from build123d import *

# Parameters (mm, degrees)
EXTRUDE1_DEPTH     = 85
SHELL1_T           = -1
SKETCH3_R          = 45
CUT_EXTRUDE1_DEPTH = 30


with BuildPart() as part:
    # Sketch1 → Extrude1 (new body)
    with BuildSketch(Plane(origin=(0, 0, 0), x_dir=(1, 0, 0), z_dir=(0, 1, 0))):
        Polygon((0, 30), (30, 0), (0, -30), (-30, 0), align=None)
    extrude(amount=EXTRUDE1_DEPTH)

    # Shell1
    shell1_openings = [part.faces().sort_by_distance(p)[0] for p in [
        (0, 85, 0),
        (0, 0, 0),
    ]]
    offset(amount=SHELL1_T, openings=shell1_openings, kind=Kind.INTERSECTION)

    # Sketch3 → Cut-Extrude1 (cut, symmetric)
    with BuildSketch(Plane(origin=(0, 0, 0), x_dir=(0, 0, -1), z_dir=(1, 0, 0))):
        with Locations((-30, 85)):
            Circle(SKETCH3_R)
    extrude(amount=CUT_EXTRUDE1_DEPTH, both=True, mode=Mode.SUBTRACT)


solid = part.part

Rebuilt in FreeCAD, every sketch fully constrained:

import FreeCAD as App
import Part
import Sketcher
Q = App.Units.Quantity


def faces_at(feature, points):
    """Names of the faces that lie closest to the given points."""
    faces = feature.Shape.Faces
    near = lambda p: min(range(len(faces)), key=lambda i: faces[i].distToShape(Part.Vertex(*p))[0])
    return sorted({f"Face{near(p) + 1}" for p in points})


def add_polygon(sketch, points):
    """Adds a closed chain of lines whose ends are joined by coincident constraints."""
    first, n = sketch.GeometryCount, len(points)
    for a, b in zip(points, points[1:] + points[:1]):
        sketch.addGeometry(Part.LineSegment(App.Vector(*a, 0), App.Vector(*b, 0)), False)
    for i in range(n):
        sketch.addConstraint(Sketcher.Constraint("Coincident", first + i, 2, first + (i + 1) % n, 1))

doc = App.newDocument("Part")
body = doc.addObject("PartDesign::Body", "Body")

sketch1 = doc.addObject("Sketcher::SketchObject", "Sketch")
body.addObject(sketch1)
sketch1.AttachmentSupport = (doc.XZ_Plane, [""])
sketch1.MapMode = "FlatFace"
add_polygon(sketch1, [(30, 0), (0, -30), (-30, 0), (0, 30)])
sketch1.addConstraint([
    Sketcher.Constraint("Symmetric", 0, 2, 2, 2, -1, 1),
    Sketcher.Constraint("Symmetric", 1, 2, 3, 2, -1, 1),
    Sketcher.Constraint("PointOnObject", 0, 2, -2),
    Sketcher.Constraint("PointOnObject", 1, 2, -1),
    Sketcher.Constraint("Perpendicular", 0, 1),
    Sketcher.Constraint("DistanceY", 0, 2, -1, 1, Q("30 mm")),
])
pad1 = doc.addObject("PartDesign::Pad", "Pad")
body.addObject(pad1)
pad1.Profile = sketch1
pad1.Length = 85
pad1.Reversed = True
doc.recompute()

thickness = doc.addObject("PartDesign::Thickness", "Thickness")
body.addObject(thickness)
thickness.Base = (pad1, faces_at(pad1, [(0, 85, 0), (0, 0, 0)]))
thickness.Value = 1
thickness.Reversed = True
thickness.Join = "Intersection"

sketch2 = doc.addObject("Sketcher::SketchObject", "Sketch001")
body.addObject(sketch2)
sketch2.AttachmentSupport = (doc.YZ_Plane, [""])
sketch2.MapMode = "FlatFace"
sketch2.addGeometry(Part.Circle(App.Vector(85, 30, 0), App.Vector(0, 0, 1), 45), False)
sketch2.addConstraint([
    Sketcher.Constraint("Diameter", 0, Q("90 mm")),
    Sketcher.Constraint("DistanceX", -1, 1, 0, 3, Q("85 mm")),
    Sketcher.Constraint("DistanceY", -1, 1, 0, 3, Q("30 mm")),
])
pocket1 = doc.addObject("PartDesign::Pocket", "Pocket")
body.addObject(pocket1)
pocket1.Profile = sketch2
pocket1.Length = 60
pocket1.Midplane = True

doc.recompute()
